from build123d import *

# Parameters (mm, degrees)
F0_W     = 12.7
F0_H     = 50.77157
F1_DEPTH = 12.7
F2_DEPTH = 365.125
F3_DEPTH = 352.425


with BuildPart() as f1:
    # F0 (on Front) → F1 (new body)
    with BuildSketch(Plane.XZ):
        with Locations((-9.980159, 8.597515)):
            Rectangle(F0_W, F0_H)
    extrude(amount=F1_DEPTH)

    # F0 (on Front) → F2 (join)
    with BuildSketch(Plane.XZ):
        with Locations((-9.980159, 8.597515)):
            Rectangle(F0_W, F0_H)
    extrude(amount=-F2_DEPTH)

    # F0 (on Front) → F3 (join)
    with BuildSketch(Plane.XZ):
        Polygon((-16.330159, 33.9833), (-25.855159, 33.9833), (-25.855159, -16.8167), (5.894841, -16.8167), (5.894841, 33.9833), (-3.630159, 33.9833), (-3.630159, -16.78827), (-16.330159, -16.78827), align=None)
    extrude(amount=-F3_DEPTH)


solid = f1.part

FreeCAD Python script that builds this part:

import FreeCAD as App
import Part
import Sketcher
Q = App.Units.Quantity


def add_polygon(sketch, points):
    """Adds a closed chain of lines whose ends are joined by coincident constraints."""
    first, n = sketch.GeometryCount, len(points)
    for a, b in zip(points, points[1:] + points[:1]):
        sketch.addGeometry(Part.LineSegment(App.Vector(*a, 0), App.Vector(*b, 0)), False)
    for i in range(n):
        sketch.addConstraint(Sketcher.Constraint("Coincident", first + i, 2, first + (i + 1) % n, 1))

doc = App.newDocument("Part")
body = doc.addObject("PartDesign::Body", "Body")

sketch1 = body.newObject("Sketcher::SketchObject", "Sketch")
sketch1.AttachmentSupport = (doc.getObject("XZ_Plane"), [""])
sketch1.MapMode = "FlatFace"
add_polygon(sketch1, [(-16.330159, 33.9833), (-16.330159, -16.78827), (-3.630159, -16.78827), (-3.630159, 33.9833)])
sketch1.addConstraint([
    Sketcher.Constraint("Vertical", 0),
    Sketcher.Constraint("Horizontal", 1),
    Sketcher.Constraint("Vertical", 2),
    Sketcher.Constraint("Horizontal", 3),
    Sketcher.Constraint("DistanceX", 1, 1, 1, 2, Q("0.5 in")),
    Sketcher.Constraint("DistanceY", 0, 2, 0, 1, Q("50.77157 mm")),
    Sketcher.Constraint("DistanceY", -1, 1, 2, 2, Q("33.9833 mm")),
    Sketcher.Constraint("DistanceX", 0, 2, -1, 1, Q("16.330159 mm")),
])
pad1 = body.newObject("PartDesign::Pad", "Pad")
pad1.Profile = sketch1
pad1.Length = Q("0.5 in")

sketch2 = body.newObject("Sketcher::SketchObject", "Sketch001")
sketch2.AttachmentSupport = (doc.getObject("XZ_Plane"), [""])
sketch2.MapMode = "FlatFace"
add_polygon(sketch2, [(-16.330159, 33.9833), (-16.330159, -16.78827), (-3.630159, -16.78827), (-3.630159, 33.9833)])
sketch2.addConstraint([
    Sketcher.Constraint("Vertical", 0),
    Sketcher.Constraint("Horizontal", 1),
    Sketcher.Constraint("Vertical", 2),
    Sketcher.Constraint("Horizontal", 3),
    Sketcher.Constraint("DistanceX", 1, 1, 1, 2, Q("0.5 in")),
    Sketcher.Constraint("DistanceY", 0, 2, 0, 1, Q("50.77157 mm")),
    Sketcher.Constraint("DistanceY", -1, 1, 2, 2, Q("33.9833 mm")),
    Sketcher.Constraint("DistanceX", 0, 2, -1, 1, Q("16.330159 mm")),
])
pad2 = body.newObject("PartDesign::Pad", "Pad001")
pad2.Profile = sketch2
pad2.Length = Q("14.375 in")
pad2.Reversed = True

sketch3 = body.newObject("Sketcher::SketchObject", "Sketch002")
sketch3.AttachmentSupport = (doc.getObject("XZ_Plane"), [""])
sketch3.MapMode = "FlatFace"
add_polygon(sketch3, [(-16.330159, 33.9833), (-25.855159, 33.9833), (-25.855159, -16.8167), (5.894841, -16.8167), (5.894841, 33.9833), (-3.630159, 33.9833), (-3.630159, -16.78827), (-16.330159, -16.78827)])
sketch3.addConstraint([
    Sketcher.Constraint("Horizontal", 0),
    Sketcher.Constraint("Vertical", 1),
    Sketcher.Constraint("Horizontal", 2),
    Sketcher.Constraint("Vertical", 3),
    Sketcher.Constraint("Horizontal", 4),
    Sketcher.Constraint("Vertical", 5),
    Sketcher.Constraint("Horizontal", 6),
    Sketcher.Constraint("Vertical", 7),
    Sketcher.Constraint("Horizontal", 0, 2, 3, 2),
    Sketcher.Constraint("Equal", 0, 4),
    Sketcher.Constraint("DistanceY", 1, 2, 1, 1, Q("2 in")),
    Sketcher.Constraint("DistanceX", 6, 2, 6, 1, Q("0.5 in")),
    Sketcher.Constraint("DistanceX", 2, 1, 2, 2, Q("1.25 in")),
    Sketcher.Constraint("DistanceY", 5, 2, 5, 1, Q("50.77157 mm")),
    Sketcher.Constraint("DistanceY", -1, 1, 0, 2, Q("33.9833 mm")),
    Sketcher.Constraint("DistanceX", 0, 2, -1, 1, Q("25.855159 mm")),
])
pad3 = body.newObject("PartDesign::Pad", "Pad002")
pad3.Profile = sketch3
pad3.Length = Q("13.875 in")
pad3.Reversed = True

doc.recompute()
